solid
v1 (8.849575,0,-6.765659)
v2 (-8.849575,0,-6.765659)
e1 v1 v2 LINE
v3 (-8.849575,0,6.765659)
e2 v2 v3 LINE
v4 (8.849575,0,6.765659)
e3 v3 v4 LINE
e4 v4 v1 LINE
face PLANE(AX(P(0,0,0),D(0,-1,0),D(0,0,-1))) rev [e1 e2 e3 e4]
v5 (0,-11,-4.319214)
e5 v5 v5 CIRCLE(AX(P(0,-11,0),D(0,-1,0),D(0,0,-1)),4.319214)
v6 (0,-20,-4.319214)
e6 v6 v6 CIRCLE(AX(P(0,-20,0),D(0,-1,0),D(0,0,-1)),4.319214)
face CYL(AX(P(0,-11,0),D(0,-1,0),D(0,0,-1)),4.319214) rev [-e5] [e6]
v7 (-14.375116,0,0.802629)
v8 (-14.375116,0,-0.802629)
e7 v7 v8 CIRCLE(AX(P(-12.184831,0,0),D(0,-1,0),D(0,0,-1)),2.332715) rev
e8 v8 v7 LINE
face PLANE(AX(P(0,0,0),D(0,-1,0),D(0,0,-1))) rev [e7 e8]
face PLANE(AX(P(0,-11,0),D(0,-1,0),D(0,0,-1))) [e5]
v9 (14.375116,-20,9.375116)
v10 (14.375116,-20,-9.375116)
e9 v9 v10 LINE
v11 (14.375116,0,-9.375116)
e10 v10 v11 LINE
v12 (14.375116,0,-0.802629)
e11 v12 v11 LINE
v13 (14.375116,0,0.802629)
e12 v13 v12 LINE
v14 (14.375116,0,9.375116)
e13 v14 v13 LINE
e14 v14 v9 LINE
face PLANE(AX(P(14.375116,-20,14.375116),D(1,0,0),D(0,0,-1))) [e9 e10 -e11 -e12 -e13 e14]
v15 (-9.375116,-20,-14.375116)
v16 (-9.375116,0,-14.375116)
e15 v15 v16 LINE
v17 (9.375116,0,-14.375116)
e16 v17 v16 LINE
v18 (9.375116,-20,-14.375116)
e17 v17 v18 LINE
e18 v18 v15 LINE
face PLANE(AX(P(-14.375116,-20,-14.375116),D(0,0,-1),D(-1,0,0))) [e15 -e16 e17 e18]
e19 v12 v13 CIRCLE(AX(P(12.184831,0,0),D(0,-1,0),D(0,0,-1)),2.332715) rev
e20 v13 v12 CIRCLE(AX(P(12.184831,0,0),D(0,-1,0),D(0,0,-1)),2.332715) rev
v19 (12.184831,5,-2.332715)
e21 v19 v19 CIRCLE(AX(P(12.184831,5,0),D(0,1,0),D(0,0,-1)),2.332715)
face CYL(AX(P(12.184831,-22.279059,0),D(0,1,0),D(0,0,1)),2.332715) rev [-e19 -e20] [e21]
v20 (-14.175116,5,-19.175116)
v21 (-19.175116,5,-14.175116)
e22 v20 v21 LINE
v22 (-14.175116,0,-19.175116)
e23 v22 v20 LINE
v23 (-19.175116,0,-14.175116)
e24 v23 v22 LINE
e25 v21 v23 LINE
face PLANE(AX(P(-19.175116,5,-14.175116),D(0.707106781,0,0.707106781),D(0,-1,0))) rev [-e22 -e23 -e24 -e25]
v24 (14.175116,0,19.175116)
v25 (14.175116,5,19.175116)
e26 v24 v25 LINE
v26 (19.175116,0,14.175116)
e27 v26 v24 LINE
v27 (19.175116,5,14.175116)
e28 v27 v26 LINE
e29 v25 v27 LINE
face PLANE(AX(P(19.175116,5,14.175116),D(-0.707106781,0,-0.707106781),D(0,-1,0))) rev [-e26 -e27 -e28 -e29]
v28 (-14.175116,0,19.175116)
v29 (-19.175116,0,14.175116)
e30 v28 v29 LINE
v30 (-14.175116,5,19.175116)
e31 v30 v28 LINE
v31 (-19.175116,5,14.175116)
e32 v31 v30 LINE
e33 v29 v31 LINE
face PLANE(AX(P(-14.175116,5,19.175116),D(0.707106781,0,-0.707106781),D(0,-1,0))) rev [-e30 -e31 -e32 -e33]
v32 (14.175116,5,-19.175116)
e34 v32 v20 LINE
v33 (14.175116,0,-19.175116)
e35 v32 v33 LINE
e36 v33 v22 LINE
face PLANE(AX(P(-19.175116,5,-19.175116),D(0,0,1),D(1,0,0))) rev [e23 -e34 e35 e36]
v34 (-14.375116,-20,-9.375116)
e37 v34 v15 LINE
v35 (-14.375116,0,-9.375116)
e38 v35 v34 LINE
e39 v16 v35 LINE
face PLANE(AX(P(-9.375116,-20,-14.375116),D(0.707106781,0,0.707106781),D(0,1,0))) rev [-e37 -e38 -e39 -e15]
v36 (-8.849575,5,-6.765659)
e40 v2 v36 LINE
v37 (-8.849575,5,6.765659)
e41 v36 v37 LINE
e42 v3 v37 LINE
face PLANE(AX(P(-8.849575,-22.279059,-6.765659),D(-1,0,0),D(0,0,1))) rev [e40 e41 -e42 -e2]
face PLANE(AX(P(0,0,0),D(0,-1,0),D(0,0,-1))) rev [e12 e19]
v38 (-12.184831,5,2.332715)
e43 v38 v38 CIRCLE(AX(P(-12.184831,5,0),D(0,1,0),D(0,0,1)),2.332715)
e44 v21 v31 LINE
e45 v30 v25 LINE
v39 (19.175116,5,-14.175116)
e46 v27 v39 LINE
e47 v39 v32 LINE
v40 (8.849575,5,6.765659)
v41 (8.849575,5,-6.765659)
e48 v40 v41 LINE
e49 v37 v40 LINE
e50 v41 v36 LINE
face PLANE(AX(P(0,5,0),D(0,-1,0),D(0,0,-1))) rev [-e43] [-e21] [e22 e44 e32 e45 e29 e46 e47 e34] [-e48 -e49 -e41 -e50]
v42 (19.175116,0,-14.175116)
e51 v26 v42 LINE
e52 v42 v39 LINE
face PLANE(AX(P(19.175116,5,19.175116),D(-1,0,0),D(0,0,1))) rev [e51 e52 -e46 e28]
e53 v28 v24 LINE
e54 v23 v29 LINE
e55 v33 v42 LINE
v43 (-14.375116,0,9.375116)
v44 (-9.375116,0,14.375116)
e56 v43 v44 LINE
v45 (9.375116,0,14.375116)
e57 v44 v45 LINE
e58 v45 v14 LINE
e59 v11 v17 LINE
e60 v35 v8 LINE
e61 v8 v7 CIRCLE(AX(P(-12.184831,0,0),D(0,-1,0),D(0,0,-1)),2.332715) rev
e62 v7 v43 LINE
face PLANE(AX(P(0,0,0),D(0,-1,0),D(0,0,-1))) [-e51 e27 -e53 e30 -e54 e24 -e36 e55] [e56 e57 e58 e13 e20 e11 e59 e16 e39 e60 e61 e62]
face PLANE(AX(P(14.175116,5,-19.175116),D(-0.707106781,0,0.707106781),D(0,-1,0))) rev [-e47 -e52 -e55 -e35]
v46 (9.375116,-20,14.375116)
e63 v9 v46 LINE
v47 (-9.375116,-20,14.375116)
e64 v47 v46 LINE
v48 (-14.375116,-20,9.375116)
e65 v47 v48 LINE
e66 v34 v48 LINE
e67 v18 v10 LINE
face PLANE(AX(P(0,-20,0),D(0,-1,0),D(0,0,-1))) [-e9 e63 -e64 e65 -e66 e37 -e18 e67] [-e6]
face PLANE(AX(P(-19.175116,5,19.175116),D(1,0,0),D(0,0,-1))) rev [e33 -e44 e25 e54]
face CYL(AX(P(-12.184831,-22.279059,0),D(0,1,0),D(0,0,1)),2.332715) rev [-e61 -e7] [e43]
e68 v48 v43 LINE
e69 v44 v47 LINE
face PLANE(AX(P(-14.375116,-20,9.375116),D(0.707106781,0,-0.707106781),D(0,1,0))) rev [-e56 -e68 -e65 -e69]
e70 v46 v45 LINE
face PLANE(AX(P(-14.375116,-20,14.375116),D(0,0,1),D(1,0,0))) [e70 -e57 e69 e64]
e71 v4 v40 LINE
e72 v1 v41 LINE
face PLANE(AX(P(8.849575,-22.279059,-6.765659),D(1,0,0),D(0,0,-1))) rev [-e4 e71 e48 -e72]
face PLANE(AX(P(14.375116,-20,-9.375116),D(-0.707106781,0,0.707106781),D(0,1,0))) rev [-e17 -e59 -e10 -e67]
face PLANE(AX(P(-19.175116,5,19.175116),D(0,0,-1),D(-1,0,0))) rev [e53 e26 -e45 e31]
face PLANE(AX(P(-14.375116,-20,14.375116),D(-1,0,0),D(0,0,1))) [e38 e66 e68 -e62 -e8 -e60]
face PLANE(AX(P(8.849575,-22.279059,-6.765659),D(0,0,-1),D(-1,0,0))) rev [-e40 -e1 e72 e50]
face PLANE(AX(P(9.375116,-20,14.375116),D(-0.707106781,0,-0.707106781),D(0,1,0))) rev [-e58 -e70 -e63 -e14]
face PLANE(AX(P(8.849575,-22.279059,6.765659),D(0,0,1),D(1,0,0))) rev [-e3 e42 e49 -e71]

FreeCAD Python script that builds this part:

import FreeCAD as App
import Part
import Sketcher
Q = App.Units.Quantity


def edges_at(feature, points):
    """Names of the edges that pass closest to the given points."""
    edges = feature.Shape.Edges
    near = lambda p: min(range(len(edges)), key=lambda i: edges[i].distToShape(Part.Vertex(*p))[0])
    return sorted({f"Edge{near(p) + 1}" for p in points})


def add_polygon(sketch, points):
    """Adds a closed chain of lines whose ends are joined by coincident constraints."""
    first, n = sketch.GeometryCount, len(points)
    for a, b in zip(points, points[1:] + points[:1]):
        sketch.addGeometry(Part.LineSegment(App.Vector(*a, 0), App.Vector(*b, 0)), False)
    for i in range(n):
        sketch.addConstraint(Sketcher.Constraint("Coincident", first + i, 2, first + (i + 1) % n, 1))

doc = App.newDocument("Part")
body = doc.addObject("PartDesign::Body", "Body")

# Sketch on XZ plane
sketch1 = body.newObject("Sketcher::SketchObject", "Sketch")
sketch1.AttachmentSupport = (doc.getObject("XZ_Plane"), [""])
sketch1.MapMode = "FlatFace"
add_polygon(sketch1, [(-19, -19), (-19, 19), (19, 19), (19, -19)])  # lines 0-3
sketch1.addConstraint(Sketcher.Constraint("Vertical", 0))
sketch1.addConstraint(Sketcher.Constraint("Horizontal", 1))
sketch1.addConstraint(Sketcher.Constraint("Vertical", 2))
sketch1.addConstraint(Sketcher.Constraint("Horizontal", 3))
sketch1.addConstraint(Sketcher.Constraint("Symmetric", 0, 2, 2, 2, -1, 1))
sketch1.addConstraint(Sketcher.Constraint("Equal", 3, 0))
sketch1.addConstraint(Sketcher.Constraint("DistanceX", 1, 1, 1, 2, Q("38.350231 mm")))
pad1 = body.newObject("PartDesign::Pad", "Pad")
pad1.Profile = sketch1
pad1.Length = 5
pad1.Reversed = True

# Sketch on XZ plane
sketch2 = body.newObject("Sketcher::SketchObject", "Sketch001")
sketch2.AttachmentSupport = (doc.getObject("XZ_Plane"), [""])
sketch2.MapMode = "FlatFace"
add_polygon(sketch2, [(-14, -14), (-14, 14), (14, 14), (14, -14)])  # lines 0-3
sketch2.addConstraint(Sketcher.Constraint("Vertical", 0))
sketch2.addConstraint(Sketcher.Constraint("Horizontal", 1))
sketch2.addConstraint(Sketcher.Constraint("Vertical", 2))
sketch2.addConstraint(Sketcher.Constraint("Horizontal", 3))
sketch2.addConstraint(Sketcher.Constraint("Symmetric", 0, 2, 2, 2, -1, 1))
sketch2.addConstraint(Sketcher.Constraint("Equal", 3, 0))
sketch2.addConstraint(Sketcher.Constraint("DistanceX", 1, 1, 1, 2, Q("28.750231 mm")))
pad2 = body.newObject("PartDesign::Pad", "Pad001")
pad2.Profile = sketch2
pad2.Length = 20
doc.recompute()

chamfer = body.newObject("PartDesign::Chamfer", "Chamfer")
chamfer.Base = (pad2, edges_at(pad2, [
    (14.375, -10, -14.375),
    (14.375, -10, 14.375),
    (-14.375, -10, 14.375),
    (-14.375, -10, -14.375),
    (19.175, 2.5, 19.175),
    (-19.175, 2.5, 19.175),
    (-19.175, 2.5, -19.175),
    (19.175, 2.5, -19.175),
]))
chamfer.Size = 5

# Sketch on XZ plane
sketch3 = body.newObject("Sketcher::SketchObject", "Sketch002")
sketch3.AttachmentSupport = (doc.getObject("XZ_Plane"), [""])
sketch3.MapMode = "FlatFace"
sketch3.AttachmentOffset = App.Placement(App.Vector(0, 0, -5), App.Rotation())
sketch3.addGeometry(Part.Circle(App.Vector(-12.2, 0, 0), App.Vector(0, 0, 1), 2.3), False)  # 0
sketch3.addGeometry(Part.Circle(App.Vector(12.2, 0, 0), App.Vector(0, 0, 1), 2.3), False)  # 1
add_polygon(sketch3, [(-8.8, -6.8), (-8.8, 6.8), (8.8, 6.8), (8.8, -6.8)])  # lines 2-5
sketch3.addConstraint(Sketcher.Constraint("Vertical", 2))
sketch3.addConstraint(Sketcher.Constraint("Horizontal", 3))
sketch3.addConstraint(Sketcher.Constraint("Vertical", 4))
sketch3.addConstraint(Sketcher.Constraint("Horizontal", 5))
sketch3.addConstraint(Sketcher.Constraint("Equal", 0, 1))
sketch3.addConstraint(Sketcher.Constraint("Symmetric", 0, 3, 1, 3, -1, 1))
sketch3.addConstraint(Sketcher.Constraint("Symmetric", 2, 2, 4, 2, -1, 1))
sketch3.addConstraint(Sketcher.Constraint("PointOnObject", 0, 3, -1))
sketch3.addConstraint(Sketcher.Constraint("Diameter", 0, Q("4.66543 mm")))
sketch3.addConstraint(Sketcher.Constraint("DistanceX", 3, 1, 3, 2, Q("17.699149 mm")))
sketch3.addConstraint(Sketcher.Constraint("DistanceY", 2, 1, 2, 2, Q("13.531318 mm")))
sketch3.addConstraint(Sketcher.Constraint("DistanceX", 0, 3, -1, 1, Q("12.184831 mm")))
pocket1 = body.newObject("PartDesign::Pocket", "Pocket")
pocket1.Profile = sketch3
pocket1.Length = 5
pocket1.Reversed = True

# Sketch on XZ plane
sketch4 = body.newObject("Sketcher::SketchObject", "Sketch003")
sketch4.AttachmentSupport = (doc.getObject("XZ_Plane"), [""])
sketch4.MapMode = "FlatFace"
sketch4.AttachmentOffset = App.Placement(App.Vector(0, 0, 20), App.Rotation())
sketch4.addGeometry(Part.Circle(App.Vector(0, 0, 0), App.Vector(0, 0, 1), 4.3), False)
sketch4.addConstraint(Sketcher.Constraint("Coincident", 0, 3, -1, 1))
sketch4.addConstraint(Sketcher.Constraint("Diameter", 0, Q("8.638427 mm")))
pocket2 = body.newObject("PartDesign::Pocket", "Pocket001")
pocket2.Profile = sketch4
pocket2.Length = 9

doc.recompute()
